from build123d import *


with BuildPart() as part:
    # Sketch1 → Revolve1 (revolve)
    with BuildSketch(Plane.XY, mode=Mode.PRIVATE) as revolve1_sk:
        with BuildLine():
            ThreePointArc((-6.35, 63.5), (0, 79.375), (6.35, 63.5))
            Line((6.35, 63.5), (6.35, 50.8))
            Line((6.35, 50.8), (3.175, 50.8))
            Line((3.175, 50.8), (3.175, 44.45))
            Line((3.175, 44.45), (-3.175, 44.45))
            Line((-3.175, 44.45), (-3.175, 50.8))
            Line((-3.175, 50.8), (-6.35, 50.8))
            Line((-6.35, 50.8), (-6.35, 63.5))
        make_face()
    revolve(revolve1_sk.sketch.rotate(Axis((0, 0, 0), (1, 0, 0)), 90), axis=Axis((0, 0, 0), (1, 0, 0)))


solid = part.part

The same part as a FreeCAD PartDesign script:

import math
import FreeCAD as App
import Part
import Sketcher

V = App.Vector
Q = App.Units.Quantity

doc = App.newDocument("Part")
body = doc.addObject("PartDesign::Body", "Body")

sketch1 = doc.addObject("Sketcher::SketchObject", "Sketch")
body.addObject(sketch1)
sketch1.AttachmentSupport = (doc.XY_Plane, [""])
sketch1.MapMode = "FlatFace"
sketch1.addGeometry([
    Part.ArcOfCircle(Part.Circle(V(0, 70.2, 0), V(0, 0, 1), 9.2), math.radians(-46), math.radians(226)),
    Part.LineSegment(V(-6.3, 63.5, 0), V(-6.3, 50.8, 0)),
    Part.LineSegment(V(-6.3, 50.8, 0), V(-3.2, 50.8, 0)),
    Part.LineSegment(V(-3.2, 50.8, 0), V(-3.2, 44.5, 0)),
    Part.LineSegment(V(-3.2, 44.5, 0), V(3.2, 44.5, 0)),
    Part.LineSegment(V(3.2, 44.5, 0), V(3.2, 50.8, 0)),
    Part.LineSegment(V(3.2, 50.8, 0), V(6.3, 50.8, 0)),
    Part.LineSegment(V(6.3, 50.8, 0), V(6.3, 63.5, 0)),
], False)
sketch1.addConstraint([
    Sketcher.Constraint("Coincident", 0, 2, 1, 1),
    Sketcher.Constraint("Coincident", 1, 2, 2, 1),
    Sketcher.Constraint("Coincident", 2, 2, 3, 1),
    Sketcher.Constraint("Coincident", 3, 2, 4, 1),
    Sketcher.Constraint("Coincident", 4, 2, 5, 1),
    Sketcher.Constraint("Coincident", 5, 2, 6, 1),
    Sketcher.Constraint("Coincident", 6, 2, 7, 1),
    Sketcher.Constraint("Coincident", 7, 2, 0, 1),
    Sketcher.Constraint("Vertical", 1),
    Sketcher.Constraint("Horizontal", 2),
    Sketcher.Constraint("Vertical", 3),
    Sketcher.Constraint("Horizontal", 4),
    Sketcher.Constraint("Vertical", 5),
    Sketcher.Constraint("Horizontal", 6),
    Sketcher.Constraint("Vertical", 7),
    Sketcher.Constraint("Symmetric", 2, 2, 5, 2, -2),
    Sketcher.Constraint("Symmetric", 0, 2, 7, 2, -2),
    Sketcher.Constraint("Equal", 4, 3),
    Sketcher.Constraint("DistanceY", 1, 2, 1, 1, Q("0.5 in")),
    Sketcher.Constraint("DistanceY", -1, 1, 1, 2, Q("2 in")),
    Sketcher.Constraint("DistanceX", 4, 1, 4, 2, Q("0.25 in")),
    Sketcher.Constraint("Radius", 0, Q("0.3625 in")),
    Sketcher.Constraint("DistanceX", 1, 2, 6, 2, Q("0.5 in")),
])
revolution = doc.addObject("PartDesign::Revolution", "Revolution")
body.addObject(revolution)
revolution.Profile = sketch1
revolution.ReferenceAxis = (sketch1, ["H_Axis"])
revolution.Angle = 360

doc.recompute()
